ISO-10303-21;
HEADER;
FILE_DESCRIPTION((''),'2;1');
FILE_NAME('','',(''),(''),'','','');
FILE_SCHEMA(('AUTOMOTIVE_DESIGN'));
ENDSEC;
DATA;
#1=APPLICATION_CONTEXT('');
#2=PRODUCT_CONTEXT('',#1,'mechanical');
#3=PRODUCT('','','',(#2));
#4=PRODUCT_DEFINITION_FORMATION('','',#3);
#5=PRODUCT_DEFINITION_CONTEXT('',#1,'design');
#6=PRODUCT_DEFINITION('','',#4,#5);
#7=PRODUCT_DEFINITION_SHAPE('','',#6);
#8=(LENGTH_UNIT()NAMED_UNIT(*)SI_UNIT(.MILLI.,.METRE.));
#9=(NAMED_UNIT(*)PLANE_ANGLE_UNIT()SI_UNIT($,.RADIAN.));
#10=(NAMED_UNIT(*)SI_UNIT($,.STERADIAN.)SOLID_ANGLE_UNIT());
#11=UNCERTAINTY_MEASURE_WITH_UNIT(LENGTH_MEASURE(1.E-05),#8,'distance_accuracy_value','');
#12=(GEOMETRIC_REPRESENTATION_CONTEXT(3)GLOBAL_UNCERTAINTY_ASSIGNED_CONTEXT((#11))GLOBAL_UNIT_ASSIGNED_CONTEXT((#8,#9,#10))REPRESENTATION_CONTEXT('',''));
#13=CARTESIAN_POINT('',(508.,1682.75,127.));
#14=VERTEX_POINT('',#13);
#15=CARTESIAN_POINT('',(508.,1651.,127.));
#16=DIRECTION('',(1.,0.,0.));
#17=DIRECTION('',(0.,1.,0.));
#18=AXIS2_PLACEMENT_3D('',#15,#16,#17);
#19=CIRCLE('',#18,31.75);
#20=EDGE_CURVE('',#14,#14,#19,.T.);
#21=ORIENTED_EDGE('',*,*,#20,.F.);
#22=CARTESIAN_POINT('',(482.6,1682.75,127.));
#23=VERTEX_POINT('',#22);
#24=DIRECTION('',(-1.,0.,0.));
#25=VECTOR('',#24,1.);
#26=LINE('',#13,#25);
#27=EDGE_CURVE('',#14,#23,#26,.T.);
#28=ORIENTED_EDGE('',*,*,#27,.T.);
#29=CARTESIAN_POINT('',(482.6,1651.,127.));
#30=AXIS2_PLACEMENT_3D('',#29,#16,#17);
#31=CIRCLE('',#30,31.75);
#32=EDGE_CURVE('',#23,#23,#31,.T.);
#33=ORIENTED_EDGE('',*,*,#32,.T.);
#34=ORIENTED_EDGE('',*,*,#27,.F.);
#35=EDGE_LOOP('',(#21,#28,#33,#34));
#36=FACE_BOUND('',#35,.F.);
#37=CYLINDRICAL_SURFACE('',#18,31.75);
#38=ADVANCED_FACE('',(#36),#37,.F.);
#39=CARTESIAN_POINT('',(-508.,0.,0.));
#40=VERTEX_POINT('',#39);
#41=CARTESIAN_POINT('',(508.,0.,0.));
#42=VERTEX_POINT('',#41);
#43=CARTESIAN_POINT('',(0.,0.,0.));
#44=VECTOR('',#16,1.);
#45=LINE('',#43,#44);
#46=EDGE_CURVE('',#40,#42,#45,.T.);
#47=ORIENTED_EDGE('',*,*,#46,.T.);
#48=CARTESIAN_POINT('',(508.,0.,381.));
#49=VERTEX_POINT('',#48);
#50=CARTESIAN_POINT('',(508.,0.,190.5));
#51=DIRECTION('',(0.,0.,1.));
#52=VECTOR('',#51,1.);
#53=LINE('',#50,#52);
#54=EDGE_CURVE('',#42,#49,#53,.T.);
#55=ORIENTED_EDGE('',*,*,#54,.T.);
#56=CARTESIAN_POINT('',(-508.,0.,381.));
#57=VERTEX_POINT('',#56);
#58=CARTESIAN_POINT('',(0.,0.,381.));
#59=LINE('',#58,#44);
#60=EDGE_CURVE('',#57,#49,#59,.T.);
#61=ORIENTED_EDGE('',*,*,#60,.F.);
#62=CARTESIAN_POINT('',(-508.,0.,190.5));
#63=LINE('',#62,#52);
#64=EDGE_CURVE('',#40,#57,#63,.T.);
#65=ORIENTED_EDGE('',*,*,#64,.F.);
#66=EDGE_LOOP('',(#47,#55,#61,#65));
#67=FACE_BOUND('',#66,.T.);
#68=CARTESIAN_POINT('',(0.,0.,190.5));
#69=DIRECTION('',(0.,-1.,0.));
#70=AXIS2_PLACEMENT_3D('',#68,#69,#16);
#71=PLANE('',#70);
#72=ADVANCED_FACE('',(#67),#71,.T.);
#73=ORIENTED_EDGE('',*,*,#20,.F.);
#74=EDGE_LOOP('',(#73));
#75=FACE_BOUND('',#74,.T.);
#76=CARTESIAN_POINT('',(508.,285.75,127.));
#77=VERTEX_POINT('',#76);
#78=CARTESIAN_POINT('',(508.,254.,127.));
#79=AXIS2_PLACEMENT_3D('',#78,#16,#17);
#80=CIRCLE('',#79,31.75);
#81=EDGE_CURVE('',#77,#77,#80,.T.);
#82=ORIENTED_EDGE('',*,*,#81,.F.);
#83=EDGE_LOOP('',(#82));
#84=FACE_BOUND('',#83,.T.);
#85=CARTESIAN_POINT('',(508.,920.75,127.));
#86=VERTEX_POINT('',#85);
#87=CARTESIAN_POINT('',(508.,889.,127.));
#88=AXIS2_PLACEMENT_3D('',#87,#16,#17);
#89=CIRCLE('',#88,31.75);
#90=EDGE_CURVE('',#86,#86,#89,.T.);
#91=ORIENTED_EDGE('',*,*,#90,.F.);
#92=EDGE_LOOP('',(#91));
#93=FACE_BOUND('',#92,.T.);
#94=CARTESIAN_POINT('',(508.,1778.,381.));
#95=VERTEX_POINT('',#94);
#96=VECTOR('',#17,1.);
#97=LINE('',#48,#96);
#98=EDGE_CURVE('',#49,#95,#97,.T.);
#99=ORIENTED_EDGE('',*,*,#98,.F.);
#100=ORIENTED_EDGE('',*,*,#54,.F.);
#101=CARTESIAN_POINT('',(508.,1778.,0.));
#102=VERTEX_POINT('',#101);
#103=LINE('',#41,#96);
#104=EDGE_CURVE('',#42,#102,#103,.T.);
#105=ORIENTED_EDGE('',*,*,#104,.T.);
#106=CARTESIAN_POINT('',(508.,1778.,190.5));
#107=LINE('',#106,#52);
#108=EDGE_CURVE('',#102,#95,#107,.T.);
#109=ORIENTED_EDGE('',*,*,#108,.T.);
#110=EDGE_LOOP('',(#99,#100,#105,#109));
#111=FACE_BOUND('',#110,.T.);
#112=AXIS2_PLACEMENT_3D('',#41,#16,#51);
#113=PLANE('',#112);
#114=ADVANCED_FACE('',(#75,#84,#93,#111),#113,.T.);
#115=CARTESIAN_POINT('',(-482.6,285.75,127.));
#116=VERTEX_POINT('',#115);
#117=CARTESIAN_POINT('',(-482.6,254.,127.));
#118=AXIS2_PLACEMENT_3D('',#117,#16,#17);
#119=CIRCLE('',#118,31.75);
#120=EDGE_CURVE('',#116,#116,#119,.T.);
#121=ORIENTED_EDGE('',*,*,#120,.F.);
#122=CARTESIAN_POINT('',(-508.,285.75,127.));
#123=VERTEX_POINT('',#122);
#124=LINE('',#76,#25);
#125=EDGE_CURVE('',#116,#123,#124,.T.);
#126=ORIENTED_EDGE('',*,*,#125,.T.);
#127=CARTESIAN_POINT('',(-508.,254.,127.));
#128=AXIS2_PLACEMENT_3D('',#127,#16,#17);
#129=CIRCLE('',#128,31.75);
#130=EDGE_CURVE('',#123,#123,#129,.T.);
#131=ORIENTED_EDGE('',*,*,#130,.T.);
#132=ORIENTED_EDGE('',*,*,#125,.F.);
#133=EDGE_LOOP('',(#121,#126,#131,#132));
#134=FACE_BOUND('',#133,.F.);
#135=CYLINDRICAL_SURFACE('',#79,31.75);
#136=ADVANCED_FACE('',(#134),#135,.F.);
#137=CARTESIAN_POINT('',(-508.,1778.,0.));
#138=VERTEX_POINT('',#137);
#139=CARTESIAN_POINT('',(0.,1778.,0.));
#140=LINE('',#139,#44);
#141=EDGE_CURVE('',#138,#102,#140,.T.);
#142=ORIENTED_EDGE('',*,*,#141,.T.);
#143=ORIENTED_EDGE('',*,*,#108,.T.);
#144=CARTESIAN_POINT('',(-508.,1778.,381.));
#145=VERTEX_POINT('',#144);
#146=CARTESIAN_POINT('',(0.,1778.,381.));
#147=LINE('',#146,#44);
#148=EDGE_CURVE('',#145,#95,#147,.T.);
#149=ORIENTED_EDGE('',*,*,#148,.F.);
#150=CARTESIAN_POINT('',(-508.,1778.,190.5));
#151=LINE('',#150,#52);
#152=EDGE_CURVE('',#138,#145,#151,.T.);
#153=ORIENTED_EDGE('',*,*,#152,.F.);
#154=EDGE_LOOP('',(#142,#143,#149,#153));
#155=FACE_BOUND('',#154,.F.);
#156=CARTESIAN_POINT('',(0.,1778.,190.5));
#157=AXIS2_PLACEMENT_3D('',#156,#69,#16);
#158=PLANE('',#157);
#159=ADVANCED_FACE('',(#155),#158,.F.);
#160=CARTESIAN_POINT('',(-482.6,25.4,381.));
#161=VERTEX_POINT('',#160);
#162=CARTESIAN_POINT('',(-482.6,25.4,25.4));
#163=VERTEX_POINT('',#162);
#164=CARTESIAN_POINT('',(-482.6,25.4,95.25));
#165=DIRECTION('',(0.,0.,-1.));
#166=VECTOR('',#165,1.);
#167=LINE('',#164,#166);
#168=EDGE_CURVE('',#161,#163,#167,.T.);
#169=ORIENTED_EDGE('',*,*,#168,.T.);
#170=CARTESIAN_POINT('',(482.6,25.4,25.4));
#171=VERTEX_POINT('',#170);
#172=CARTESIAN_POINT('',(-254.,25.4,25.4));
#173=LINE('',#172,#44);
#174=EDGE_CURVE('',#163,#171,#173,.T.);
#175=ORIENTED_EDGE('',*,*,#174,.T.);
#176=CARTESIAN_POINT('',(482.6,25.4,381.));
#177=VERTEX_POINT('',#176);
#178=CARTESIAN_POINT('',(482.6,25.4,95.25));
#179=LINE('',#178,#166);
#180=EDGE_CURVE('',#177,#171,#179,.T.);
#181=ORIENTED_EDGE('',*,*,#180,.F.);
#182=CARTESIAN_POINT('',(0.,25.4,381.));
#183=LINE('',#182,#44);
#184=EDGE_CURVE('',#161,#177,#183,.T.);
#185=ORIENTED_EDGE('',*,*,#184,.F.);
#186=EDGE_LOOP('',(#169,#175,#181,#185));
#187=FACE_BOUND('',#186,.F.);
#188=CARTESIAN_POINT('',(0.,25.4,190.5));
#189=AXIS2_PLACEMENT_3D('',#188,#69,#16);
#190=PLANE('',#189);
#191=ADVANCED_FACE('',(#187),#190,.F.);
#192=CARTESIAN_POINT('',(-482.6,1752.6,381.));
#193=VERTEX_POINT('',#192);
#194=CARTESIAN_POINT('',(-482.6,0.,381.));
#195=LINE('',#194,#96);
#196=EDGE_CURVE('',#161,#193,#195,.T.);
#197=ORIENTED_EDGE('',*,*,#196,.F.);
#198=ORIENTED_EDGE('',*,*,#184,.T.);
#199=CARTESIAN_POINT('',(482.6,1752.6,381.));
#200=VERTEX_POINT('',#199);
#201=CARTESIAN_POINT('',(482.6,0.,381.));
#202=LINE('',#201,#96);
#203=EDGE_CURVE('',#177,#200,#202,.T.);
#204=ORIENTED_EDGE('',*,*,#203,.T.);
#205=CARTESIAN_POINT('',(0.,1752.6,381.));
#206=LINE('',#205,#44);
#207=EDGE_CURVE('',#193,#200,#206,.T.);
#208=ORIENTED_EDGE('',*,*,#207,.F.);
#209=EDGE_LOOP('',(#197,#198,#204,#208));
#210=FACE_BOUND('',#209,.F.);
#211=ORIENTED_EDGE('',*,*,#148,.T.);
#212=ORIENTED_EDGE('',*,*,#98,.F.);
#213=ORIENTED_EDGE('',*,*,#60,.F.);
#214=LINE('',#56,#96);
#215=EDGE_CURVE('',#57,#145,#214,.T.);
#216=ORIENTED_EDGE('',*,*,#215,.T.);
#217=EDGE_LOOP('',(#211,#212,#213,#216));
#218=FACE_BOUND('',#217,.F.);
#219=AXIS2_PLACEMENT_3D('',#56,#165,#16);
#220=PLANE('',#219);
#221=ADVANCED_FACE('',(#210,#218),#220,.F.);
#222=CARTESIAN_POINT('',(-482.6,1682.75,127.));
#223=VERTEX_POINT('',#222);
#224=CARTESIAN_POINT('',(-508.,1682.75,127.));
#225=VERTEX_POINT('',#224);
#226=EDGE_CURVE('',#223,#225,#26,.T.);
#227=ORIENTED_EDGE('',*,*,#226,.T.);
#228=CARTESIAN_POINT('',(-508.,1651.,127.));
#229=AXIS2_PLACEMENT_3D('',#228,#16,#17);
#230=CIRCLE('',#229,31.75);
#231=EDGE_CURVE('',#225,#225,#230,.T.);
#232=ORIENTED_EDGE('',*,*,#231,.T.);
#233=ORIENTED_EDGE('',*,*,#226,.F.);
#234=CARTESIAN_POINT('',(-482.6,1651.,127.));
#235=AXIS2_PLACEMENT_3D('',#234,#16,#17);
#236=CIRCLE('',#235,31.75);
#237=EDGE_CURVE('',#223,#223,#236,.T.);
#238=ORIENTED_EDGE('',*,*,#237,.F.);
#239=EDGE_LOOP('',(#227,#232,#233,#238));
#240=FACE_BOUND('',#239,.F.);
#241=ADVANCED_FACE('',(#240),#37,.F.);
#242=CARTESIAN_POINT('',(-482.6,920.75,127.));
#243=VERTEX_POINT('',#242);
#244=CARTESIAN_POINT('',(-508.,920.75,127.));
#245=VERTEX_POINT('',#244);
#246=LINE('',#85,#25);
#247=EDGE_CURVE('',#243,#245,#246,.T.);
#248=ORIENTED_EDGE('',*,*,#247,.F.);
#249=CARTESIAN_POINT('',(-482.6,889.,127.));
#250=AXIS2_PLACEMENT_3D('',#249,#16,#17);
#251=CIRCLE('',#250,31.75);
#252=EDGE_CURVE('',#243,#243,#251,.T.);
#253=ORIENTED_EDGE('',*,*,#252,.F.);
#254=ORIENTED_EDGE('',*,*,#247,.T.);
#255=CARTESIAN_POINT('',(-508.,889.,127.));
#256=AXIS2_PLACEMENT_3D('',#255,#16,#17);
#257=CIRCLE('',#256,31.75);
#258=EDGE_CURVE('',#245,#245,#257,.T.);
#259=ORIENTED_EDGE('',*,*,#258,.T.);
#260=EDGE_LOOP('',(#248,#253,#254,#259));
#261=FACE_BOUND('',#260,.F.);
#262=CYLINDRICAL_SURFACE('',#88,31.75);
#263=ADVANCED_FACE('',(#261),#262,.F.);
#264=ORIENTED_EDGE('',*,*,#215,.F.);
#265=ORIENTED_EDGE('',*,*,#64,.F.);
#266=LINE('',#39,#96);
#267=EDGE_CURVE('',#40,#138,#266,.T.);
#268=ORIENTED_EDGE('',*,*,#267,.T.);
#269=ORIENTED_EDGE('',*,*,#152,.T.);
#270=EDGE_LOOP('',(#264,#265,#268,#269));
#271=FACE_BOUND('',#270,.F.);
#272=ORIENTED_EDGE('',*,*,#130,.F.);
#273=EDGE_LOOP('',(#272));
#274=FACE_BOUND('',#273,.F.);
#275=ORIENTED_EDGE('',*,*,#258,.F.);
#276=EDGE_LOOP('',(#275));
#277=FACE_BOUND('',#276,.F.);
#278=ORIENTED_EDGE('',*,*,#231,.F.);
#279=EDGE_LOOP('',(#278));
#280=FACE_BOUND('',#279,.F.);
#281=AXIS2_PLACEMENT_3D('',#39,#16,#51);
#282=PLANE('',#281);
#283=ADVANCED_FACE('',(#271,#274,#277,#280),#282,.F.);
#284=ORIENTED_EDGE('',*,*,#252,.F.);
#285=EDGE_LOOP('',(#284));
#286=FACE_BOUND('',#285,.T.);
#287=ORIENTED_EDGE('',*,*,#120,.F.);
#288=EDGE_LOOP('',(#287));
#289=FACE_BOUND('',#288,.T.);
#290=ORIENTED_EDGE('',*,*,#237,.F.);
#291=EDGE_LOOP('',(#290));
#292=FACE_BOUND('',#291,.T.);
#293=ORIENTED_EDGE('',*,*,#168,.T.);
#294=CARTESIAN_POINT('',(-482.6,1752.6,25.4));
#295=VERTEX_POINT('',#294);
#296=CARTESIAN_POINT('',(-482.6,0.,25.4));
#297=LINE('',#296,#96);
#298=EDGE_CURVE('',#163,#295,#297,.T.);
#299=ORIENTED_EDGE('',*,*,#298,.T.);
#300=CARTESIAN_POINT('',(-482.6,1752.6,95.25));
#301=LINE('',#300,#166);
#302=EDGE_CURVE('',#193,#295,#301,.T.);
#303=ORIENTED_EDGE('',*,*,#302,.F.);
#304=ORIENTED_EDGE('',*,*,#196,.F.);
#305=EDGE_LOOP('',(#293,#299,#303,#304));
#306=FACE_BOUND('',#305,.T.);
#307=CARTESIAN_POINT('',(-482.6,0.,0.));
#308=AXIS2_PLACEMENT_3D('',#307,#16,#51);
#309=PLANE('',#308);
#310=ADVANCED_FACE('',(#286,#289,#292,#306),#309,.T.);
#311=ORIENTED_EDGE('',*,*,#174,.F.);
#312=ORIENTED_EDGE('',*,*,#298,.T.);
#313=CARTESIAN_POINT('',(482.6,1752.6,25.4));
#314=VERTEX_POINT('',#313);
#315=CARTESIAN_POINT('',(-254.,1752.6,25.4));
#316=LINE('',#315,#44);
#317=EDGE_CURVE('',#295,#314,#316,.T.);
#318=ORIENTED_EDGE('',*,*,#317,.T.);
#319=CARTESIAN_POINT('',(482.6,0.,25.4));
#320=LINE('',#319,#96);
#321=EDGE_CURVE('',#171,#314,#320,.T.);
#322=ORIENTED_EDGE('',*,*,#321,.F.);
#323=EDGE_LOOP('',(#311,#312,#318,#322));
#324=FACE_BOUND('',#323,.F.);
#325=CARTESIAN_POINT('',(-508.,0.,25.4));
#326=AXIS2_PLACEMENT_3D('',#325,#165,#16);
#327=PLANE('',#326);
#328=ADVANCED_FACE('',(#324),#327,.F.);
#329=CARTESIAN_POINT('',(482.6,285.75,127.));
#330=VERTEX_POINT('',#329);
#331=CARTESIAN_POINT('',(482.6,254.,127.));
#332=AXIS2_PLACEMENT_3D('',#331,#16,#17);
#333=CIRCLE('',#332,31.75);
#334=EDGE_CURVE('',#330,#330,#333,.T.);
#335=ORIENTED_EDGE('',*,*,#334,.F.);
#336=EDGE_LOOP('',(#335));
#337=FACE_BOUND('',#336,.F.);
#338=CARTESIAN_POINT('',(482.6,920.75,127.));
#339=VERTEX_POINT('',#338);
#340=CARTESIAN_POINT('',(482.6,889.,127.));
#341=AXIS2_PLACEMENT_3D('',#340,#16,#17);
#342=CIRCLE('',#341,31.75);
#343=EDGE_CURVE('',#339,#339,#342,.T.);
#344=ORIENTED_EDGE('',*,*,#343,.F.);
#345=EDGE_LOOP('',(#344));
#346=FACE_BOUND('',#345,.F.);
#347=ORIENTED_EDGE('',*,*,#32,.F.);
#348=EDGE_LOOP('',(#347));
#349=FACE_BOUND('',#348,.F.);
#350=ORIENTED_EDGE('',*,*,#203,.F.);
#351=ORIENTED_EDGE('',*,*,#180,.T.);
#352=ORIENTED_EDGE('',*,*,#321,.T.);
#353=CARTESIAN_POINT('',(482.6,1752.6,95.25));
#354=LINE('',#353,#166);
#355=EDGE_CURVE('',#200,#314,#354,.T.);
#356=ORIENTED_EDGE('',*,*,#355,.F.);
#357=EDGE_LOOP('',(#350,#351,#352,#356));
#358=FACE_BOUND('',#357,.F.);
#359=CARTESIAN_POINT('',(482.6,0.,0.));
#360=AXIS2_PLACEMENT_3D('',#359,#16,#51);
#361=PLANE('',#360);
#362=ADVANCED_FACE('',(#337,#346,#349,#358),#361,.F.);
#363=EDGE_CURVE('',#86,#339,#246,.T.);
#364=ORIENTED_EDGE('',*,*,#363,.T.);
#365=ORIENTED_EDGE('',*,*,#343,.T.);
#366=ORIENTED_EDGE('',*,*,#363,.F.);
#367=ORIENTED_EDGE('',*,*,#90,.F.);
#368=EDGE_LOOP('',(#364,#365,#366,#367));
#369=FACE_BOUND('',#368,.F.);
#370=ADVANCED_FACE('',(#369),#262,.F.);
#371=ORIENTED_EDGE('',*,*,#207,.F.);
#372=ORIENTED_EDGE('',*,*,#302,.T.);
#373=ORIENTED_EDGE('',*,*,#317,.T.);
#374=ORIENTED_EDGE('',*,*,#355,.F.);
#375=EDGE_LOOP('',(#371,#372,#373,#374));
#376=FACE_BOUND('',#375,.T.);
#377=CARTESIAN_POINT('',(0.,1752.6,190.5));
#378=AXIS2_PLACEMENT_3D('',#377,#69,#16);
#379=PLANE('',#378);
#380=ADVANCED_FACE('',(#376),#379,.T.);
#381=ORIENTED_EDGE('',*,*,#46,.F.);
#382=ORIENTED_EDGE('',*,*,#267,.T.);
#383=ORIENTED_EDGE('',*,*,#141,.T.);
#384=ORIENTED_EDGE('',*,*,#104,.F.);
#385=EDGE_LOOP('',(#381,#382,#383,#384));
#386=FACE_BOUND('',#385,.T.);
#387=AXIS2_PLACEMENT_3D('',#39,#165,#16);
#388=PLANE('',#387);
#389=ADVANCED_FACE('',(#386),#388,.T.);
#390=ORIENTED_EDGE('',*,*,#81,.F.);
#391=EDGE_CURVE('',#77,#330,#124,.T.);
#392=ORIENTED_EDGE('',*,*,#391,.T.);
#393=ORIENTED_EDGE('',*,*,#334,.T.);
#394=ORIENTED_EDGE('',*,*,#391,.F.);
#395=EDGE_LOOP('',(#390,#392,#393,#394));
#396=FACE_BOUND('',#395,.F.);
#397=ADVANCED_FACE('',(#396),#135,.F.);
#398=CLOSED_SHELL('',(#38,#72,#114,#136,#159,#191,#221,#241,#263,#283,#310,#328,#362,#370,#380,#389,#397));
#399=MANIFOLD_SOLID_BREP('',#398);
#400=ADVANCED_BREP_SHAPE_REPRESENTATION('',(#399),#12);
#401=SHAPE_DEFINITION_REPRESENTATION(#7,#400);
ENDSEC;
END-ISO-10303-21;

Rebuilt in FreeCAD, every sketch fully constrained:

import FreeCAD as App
import Part
import Sketcher

V = App.Vector
Q = App.Units.Quantity


def faces_at(feature, points):
    """Names of the faces that lie closest to the given points."""
    faces = feature.Shape.Faces
    near = lambda p: min(range(len(faces)), key=lambda i: faces[i].distToShape(Part.Vertex(*p))[0])
    return sorted({f"Face{near(p) + 1}" for p in points})


def add_polygon(sketch, points):
    """Adds a closed chain of lines whose ends are joined by coincident constraints."""
    first, n = sketch.GeometryCount, len(points)
    for a, b in zip(points, points[1:] + points[:1]):
        sketch.addGeometry(Part.LineSegment(App.Vector(*a, 0), App.Vector(*b, 0)), False)
    for i in range(n):
        sketch.addConstraint(Sketcher.Constraint("Coincident", first + i, 2, first + (i + 1) % n, 1))

doc = App.newDocument("Part")
body = doc.addObject("PartDesign::Body", "Body")

sketch1 = body.newObject("Sketcher::SketchObject", "Sketch")
sketch1.AttachmentSupport = (doc.getObject("XZ_Plane"), [""])
sketch1.MapMode = "FlatFace"
add_polygon(sketch1, [(-508, 381), (-508, 0), (508, 0), (508, 381)])
sketch1.addConstraint([
    Sketcher.Constraint("Vertical", 0),
    Sketcher.Constraint("Horizontal", 1),
    Sketcher.Constraint("Vertical", 2),
    Sketcher.Constraint("Horizontal", 3),
    Sketcher.Constraint("Symmetric", 0, 2, 1, 2, -1, 1),
    Sketcher.Constraint("DistanceX", 1, 1, 1, 2, Q("40 in")),
    Sketcher.Constraint("DistanceY", 0, 2, 0, 1, Q("15 in")),
])
pad1 = body.newObject("PartDesign::Pad", "Pad")
pad1.Profile = sketch1
pad1.Length = Q("70 in")
pad1.Reversed = True
doc.recompute()

thickness = body.newObject("PartDesign::Thickness", "Thickness")
thickness.Base = (pad1, faces_at(pad1, [(0, 889, 381)]))
thickness.Value = Q("1 in")
thickness.Reversed = True
thickness.Join = "Arc"

sketch2 = body.newObject("Sketcher::SketchObject", "Sketch001")
sketch2.AttachmentSupport = (doc.getObject("YZ_Plane"), [""])
sketch2.MapMode = "FlatFace"
sketch2.AttachmentOffset = App.Placement(V(0, 0, 20 * 25.4), App.Rotation())
sketch2.addGeometry([
    Part.Circle(V(254, 127, 0), V(0, 0, 1), 31.75),
    Part.Circle(V(1651, 127, 0), V(0, 0, 1), 31.75),
    Part.Circle(V(889, 127, 0), V(0, 0, 1), 31.75),
], False)
sketch2.addConstraint([
    Sketcher.Constraint("Equal", 0, 1),
    Sketcher.Constraint("Equal", 1, 2),
    Sketcher.Constraint("Horizontal", 0, 3, 1, 3),
    Sketcher.Constraint("Horizontal", 1, 3, 2, 3),
    Sketcher.Constraint("Diameter", 0, Q("2.5 in")),
    Sketcher.Constraint("DistanceX", -1, 1, 0, 3, Q("10 in")),
    Sketcher.Constraint("DistanceY", -1, 1, 0, 3, Q("5 in")),
    Sketcher.Constraint("DistanceX", -1, 1, 1, 3, Q("65 in")),
    Sketcher.Constraint("DistanceX", -1, 1, 2, 3, Q("35 in")),
])
pocket1 = body.newObject("PartDesign::Pocket", "Pocket")
pocket1.Profile = sketch2
pocket1.Type = "ThroughAll"

doc.recompute()
